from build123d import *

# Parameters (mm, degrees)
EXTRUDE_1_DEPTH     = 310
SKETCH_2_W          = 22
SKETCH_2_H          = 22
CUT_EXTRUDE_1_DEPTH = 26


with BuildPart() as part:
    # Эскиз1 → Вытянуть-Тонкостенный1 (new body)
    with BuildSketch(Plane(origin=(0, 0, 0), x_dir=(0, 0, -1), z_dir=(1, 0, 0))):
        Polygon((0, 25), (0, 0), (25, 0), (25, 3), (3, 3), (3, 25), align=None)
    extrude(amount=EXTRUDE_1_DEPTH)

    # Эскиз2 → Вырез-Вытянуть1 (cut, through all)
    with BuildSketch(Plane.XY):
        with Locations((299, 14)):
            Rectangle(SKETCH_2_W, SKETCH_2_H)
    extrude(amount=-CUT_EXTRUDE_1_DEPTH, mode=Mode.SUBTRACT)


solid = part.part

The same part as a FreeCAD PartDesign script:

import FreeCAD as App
import Part
import Sketcher
from FreeCAD import Vector
Q = App.Units.Quantity

doc = App.newDocument("Part")
body = doc.addObject("PartDesign::Body", "Body")

sketch1 = doc.addObject("Sketcher::SketchObject", "Sketch")
body.addObject(sketch1)
sketch1.AttachmentSupport = (doc.YZ_Plane, [""])
sketch1.MapMode = "FlatFace"
sketch1.addGeometry([
    Part.LineSegment(Vector(25, 0, 0), Vector(0, 0, 0)),
    Part.LineSegment(Vector(0, 0, 0), Vector(0, -25, 0)),
    Part.LineSegment(Vector(0, -25, 0), Vector(3, -25, 0)),
    Part.LineSegment(Vector(3, -25, 0), Vector(3, -3, 0)),
    Part.LineSegment(Vector(3, -3, 0), Vector(25, -3, 0)),
    Part.LineSegment(Vector(25, -3, 0), Vector(25, 0, 0)),
], False)
sketch1.addConstraint([
    Sketcher.Constraint("Coincident", 0, 2, 1, 1),
    Sketcher.Constraint("Coincident", 1, 2, 2, 1),
    Sketcher.Constraint("Coincident", 2, 2, 3, 1),
    Sketcher.Constraint("Coincident", 3, 2, 4, 1),
    Sketcher.Constraint("Coincident", 4, 2, 5, 1),
    Sketcher.Constraint("Coincident", 5, 2, 0, 1),
    Sketcher.Constraint("Horizontal", 0),
    Sketcher.Constraint("Vertical", 1),
    Sketcher.Constraint("Horizontal", 2),
    Sketcher.Constraint("Vertical", 3),
    Sketcher.Constraint("Horizontal", 4),
    Sketcher.Constraint("Vertical", 5),
    Sketcher.Constraint("Coincident", 0, 2, -1, 1),
    Sketcher.Constraint("Equal", 0, 1),
    Sketcher.Constraint("Equal", 4, 3),
    Sketcher.Constraint("DistanceX", 0, 2, 0, 1, Q("25 mm")),
    Sketcher.Constraint("DistanceX", 2, 1, 2, 2, Q("3 mm")),
])
pad1 = doc.addObject("PartDesign::Pad", "Pad")
body.addObject(pad1)
pad1.Profile = sketch1
pad1.Length = 310

sketch2 = doc.addObject("Sketcher::SketchObject", "Sketch001")
body.addObject(sketch2)
sketch2.AttachmentSupport = (doc.XY_Plane, [""])
sketch2.MapMode = "FlatFace"
sketch2.addGeometry([
    Part.LineSegment(Vector(288, 25, 0), Vector(288, 3, 0)),
    Part.LineSegment(Vector(288, 3, 0), Vector(310, 3, 0)),
    Part.LineSegment(Vector(310, 3, 0), Vector(310, 25, 0)),
    Part.LineSegment(Vector(310, 25, 0), Vector(288, 25, 0)),
], False)
sketch2.addConstraint([
    Sketcher.Constraint("Coincident", 0, 2, 1, 1),
    Sketcher.Constraint("Coincident", 1, 2, 2, 1),
    Sketcher.Constraint("Coincident", 2, 2, 3, 1),
    Sketcher.Constraint("Coincident", 3, 2, 0, 1),
    Sketcher.Constraint("Vertical", 0),
    Sketcher.Constraint("Horizontal", 1),
    Sketcher.Constraint("Vertical", 2),
    Sketcher.Constraint("Horizontal", 3),
    Sketcher.Constraint("Equal", 3, 0),
    Sketcher.Constraint("DistanceX", 1, 1, 1, 2, Q("22 mm")),
    Sketcher.Constraint("DistanceX", -1, 1, 0, 2, Q("288 mm")),
    Sketcher.Constraint("DistanceY", -1, 1, 0, 2, Q("3 mm")),
])
pocket1 = doc.addObject("PartDesign::Pocket", "Pocket")
body.addObject(pocket1)
pocket1.Profile = sketch2
pocket1.Type = "ThroughAll"

doc.recompute()
